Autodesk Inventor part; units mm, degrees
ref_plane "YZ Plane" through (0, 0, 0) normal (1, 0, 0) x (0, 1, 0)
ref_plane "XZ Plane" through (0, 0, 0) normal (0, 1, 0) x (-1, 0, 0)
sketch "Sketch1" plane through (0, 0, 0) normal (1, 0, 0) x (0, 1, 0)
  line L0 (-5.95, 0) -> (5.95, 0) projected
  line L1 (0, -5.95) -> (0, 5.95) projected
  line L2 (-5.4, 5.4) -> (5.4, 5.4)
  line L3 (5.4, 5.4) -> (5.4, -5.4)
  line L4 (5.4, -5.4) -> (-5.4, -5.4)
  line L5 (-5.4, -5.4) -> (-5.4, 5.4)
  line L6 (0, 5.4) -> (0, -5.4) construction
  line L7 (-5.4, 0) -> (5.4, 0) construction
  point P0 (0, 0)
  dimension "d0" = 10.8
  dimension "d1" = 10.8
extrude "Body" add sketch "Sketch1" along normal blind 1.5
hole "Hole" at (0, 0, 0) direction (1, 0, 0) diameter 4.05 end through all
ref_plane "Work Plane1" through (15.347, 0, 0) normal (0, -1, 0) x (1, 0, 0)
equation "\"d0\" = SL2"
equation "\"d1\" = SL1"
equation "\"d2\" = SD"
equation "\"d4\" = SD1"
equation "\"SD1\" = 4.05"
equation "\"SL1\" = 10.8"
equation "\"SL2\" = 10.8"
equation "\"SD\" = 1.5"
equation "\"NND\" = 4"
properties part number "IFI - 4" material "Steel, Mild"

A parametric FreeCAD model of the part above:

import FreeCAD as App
import Part
import Sketcher
from FreeCAD import Vector
Q = App.Units.Quantity


def add_polygon(sketch, points):
    """Adds a closed chain of lines whose ends are joined by coincident constraints."""
    first, n = sketch.GeometryCount, len(points)
    for a, b in zip(points, points[1:] + points[:1]):
        sketch.addGeometry(Part.LineSegment(App.Vector(*a, 0), App.Vector(*b, 0)), False)
    for i in range(n):
        sketch.addConstraint(Sketcher.Constraint("Coincident", first + i, 2, first + (i + 1) % n, 1))

doc = App.newDocument("Part")
body = doc.addObject("PartDesign::Body", "Body")

sketch1 = body.newObject("Sketcher::SketchObject", "Sketch")
sketch1.AttachmentSupport = (doc.getObject("YZ_Plane"), [""])
sketch1.MapMode = "FlatFace"
add_polygon(sketch1, [(-5, 5), (-5, -5), (5, -5), (5, 5)])
sketch1.addConstraint(Sketcher.Constraint("Vertical", 0))
sketch1.addConstraint(Sketcher.Constraint("Horizontal", 1))
sketch1.addConstraint(Sketcher.Constraint("Vertical", 2))
sketch1.addConstraint(Sketcher.Constraint("Horizontal", 3))
sketch1.addConstraint(Sketcher.Constraint("Symmetric", 0, 2, 2, 2, -1, 1))
sketch1.addConstraint(Sketcher.Constraint("Equal", 3, 0))
sketch1.addConstraint(Sketcher.Constraint("DistanceX", 1, 1, 1, 2, Q("10.8 mm")))
pad1 = body.newObject("PartDesign::Pad", "Pad")
pad1.Profile = sketch1
pad1.Length = 1.5

sketch2 = body.newObject("Sketcher::SketchObject", "Sketch001")
sketch2.AttachmentSupport = (doc.getObject("YZ_Plane"), [""])
sketch2.MapMode = "FlatFace"
sketch2.addGeometry(Part.Circle(Vector(0, 0, 0), Vector(0, 0, 1), 2), False)
sketch2.addConstraint(Sketcher.Constraint("Coincident", 0, 3, -1, 1))
sketch2.addConstraint(Sketcher.Constraint("Diameter", 0, Q("4.05 mm")))
doc.recompute()
hole = body.newObject("PartDesign::Hole", "Hole")
hole.Profile = sketch2
hole.ThreadType = "None"
hole.Diameter = 4.05
hole.DepthType = "ThroughAll"
hole.Reversed = True

doc.recompute()
